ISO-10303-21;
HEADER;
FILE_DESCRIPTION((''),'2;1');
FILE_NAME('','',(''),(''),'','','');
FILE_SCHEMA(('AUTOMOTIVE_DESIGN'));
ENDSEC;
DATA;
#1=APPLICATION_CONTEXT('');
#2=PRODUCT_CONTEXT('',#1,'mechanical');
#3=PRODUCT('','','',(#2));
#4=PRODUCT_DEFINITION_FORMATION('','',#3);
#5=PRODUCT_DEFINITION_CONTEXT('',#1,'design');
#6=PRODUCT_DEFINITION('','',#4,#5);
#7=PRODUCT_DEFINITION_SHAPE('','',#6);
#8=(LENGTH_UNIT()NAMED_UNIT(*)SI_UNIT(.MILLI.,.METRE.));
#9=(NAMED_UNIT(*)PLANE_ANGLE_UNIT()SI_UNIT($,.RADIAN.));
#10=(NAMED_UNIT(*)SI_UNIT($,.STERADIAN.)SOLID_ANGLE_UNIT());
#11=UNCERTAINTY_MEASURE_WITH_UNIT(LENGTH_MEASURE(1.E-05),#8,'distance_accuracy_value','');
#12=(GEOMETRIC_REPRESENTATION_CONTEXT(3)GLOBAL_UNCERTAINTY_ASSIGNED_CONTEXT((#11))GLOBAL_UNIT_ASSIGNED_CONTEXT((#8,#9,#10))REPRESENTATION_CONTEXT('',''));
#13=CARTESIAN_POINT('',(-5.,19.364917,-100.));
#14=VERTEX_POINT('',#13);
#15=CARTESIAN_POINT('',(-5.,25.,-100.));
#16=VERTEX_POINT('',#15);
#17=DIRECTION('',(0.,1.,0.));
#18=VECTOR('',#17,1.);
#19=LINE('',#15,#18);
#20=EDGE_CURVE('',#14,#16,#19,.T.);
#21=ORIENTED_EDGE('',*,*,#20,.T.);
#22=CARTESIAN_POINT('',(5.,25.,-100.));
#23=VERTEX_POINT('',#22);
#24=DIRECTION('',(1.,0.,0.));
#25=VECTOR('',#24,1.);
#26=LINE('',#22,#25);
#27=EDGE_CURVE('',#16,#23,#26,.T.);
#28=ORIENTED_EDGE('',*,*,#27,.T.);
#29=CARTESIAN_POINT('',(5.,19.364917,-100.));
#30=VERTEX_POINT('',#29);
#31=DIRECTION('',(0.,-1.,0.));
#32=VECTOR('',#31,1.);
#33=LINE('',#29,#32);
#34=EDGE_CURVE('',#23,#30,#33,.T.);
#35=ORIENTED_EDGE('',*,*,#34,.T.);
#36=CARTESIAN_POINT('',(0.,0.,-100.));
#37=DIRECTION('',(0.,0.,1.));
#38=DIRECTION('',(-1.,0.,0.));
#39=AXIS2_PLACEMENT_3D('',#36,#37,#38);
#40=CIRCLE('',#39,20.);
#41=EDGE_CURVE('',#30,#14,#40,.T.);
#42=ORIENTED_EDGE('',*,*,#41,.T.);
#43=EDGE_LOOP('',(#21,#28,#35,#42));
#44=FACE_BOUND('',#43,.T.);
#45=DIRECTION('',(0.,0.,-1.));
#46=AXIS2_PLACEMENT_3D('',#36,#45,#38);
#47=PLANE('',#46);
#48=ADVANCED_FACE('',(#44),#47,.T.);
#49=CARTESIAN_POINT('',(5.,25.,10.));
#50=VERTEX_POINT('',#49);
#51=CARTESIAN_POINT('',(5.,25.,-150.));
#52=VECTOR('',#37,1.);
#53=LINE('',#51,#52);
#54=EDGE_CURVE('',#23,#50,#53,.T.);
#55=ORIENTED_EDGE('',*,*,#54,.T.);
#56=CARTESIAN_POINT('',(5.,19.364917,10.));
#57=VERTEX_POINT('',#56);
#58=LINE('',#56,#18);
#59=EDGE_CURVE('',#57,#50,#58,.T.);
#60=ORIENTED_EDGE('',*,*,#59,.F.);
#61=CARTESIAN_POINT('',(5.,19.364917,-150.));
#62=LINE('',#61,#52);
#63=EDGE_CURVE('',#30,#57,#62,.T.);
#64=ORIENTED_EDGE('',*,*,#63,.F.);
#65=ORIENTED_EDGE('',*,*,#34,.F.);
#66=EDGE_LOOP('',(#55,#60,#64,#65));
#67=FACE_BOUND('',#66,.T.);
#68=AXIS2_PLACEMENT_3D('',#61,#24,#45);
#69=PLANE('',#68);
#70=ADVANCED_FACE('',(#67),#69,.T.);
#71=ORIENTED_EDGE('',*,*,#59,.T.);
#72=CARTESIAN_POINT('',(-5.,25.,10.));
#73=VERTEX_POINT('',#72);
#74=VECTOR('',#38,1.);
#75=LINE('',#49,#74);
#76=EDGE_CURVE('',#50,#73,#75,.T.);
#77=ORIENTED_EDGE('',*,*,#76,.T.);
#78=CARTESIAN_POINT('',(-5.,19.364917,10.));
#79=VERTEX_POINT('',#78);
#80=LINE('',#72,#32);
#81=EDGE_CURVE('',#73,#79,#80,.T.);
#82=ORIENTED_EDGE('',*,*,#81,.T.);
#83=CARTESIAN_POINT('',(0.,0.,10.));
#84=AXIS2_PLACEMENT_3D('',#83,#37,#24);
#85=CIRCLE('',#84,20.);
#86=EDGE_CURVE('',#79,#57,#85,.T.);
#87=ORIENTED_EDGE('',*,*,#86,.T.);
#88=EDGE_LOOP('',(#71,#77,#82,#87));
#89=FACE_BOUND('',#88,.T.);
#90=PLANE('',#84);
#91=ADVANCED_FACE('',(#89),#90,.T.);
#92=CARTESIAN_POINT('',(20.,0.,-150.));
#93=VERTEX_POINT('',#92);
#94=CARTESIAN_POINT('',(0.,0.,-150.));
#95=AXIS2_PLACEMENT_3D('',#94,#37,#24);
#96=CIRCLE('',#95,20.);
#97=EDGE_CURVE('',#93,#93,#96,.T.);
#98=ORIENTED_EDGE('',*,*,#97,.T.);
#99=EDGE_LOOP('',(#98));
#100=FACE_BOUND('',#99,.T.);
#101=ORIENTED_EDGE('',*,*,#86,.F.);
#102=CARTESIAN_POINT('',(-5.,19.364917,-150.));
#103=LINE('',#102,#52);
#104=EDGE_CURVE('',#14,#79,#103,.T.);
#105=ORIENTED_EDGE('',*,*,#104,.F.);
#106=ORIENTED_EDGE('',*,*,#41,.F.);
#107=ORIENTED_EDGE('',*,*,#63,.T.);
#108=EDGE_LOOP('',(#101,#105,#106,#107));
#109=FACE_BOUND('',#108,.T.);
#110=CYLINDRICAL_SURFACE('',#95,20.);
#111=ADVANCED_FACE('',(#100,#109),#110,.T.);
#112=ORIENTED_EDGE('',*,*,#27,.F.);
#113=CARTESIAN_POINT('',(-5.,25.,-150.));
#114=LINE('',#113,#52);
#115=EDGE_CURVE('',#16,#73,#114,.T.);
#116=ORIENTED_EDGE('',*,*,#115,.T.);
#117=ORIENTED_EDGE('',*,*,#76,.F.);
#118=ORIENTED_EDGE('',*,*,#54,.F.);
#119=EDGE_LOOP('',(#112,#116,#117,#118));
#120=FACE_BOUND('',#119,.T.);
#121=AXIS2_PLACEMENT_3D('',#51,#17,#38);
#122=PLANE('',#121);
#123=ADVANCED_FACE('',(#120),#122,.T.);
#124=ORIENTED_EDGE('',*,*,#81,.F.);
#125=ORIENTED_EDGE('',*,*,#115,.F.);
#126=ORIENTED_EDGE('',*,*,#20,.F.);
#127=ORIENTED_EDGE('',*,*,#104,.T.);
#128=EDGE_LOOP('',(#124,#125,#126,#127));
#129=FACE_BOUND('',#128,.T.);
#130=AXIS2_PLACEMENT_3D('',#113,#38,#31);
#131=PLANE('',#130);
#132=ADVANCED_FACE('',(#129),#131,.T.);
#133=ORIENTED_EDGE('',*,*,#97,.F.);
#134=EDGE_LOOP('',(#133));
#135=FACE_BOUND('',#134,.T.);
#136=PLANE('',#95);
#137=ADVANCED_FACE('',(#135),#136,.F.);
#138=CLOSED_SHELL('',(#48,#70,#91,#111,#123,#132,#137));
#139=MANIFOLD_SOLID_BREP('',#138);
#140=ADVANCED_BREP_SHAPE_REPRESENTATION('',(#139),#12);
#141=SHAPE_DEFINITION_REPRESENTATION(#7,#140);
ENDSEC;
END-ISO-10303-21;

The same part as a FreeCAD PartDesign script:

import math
import FreeCAD as App
import Part
import Sketcher
from FreeCAD import Vector

doc = App.newDocument("Part")
body = doc.addObject("PartDesign::Body", "Body")

sketch1 = body.newObject("Sketcher::SketchObject", "Sketch")
sketch1.AttachmentSupport = (doc.getObject("XY_Plane"), [""])
sketch1.MapMode = "FlatFace"
sketch1.addGeometry(Part.LineSegment(Vector(-5, 25, 0), Vector(-5, 19, 0)), False)
sketch1.addGeometry(Part.ArcOfCircle(Part.Circle(Vector(0, 0, 0), Vector(0, 0, 1), 20), math.radians(104), math.radians(436)), False)
sketch1.addGeometry(Part.LineSegment(Vector(5, 19, 0), Vector(5, 25, 0)), False)
sketch1.addGeometry(Part.LineSegment(Vector(5, 25, 0), Vector(-5, 25, 0)), False)
sketch1.addConstraint(Sketcher.Constraint("Coincident", 0, 2, 1, 1))
sketch1.addConstraint(Sketcher.Constraint("Coincident", 1, 2, 2, 1))
sketch1.addConstraint(Sketcher.Constraint("Coincident", 2, 2, 3, 1))
sketch1.addConstraint(Sketcher.Constraint("Coincident", 3, 2, 0, 1))
sketch1.addConstraint(Sketcher.Constraint("Vertical", 0))
sketch1.addConstraint(Sketcher.Constraint("Vertical", 2))
sketch1.addConstraint(Sketcher.Constraint("Horizontal", 3))
sketch1.addConstraint(Sketcher.Constraint("Coincident", 1, 3, -1, 1))
sketch1.addConstraint(Sketcher.Constraint("Horizontal", 0, 2, 1, 2))
sketch1.addConstraint(Sketcher.Constraint("Radius", 1, 20.0))
sketch1.addConstraint(Sketcher.Constraint("DistanceX", 3, 2, 3, 1, 10.0))
sketch1.addConstraint(Sketcher.Constraint("DistanceY", -1, 1, 2, 2, 25.0))
pad1 = body.newObject("PartDesign::Pad", "Pad")
pad1.Profile = sketch1
pad1.Type = "TwoLengths"
pad1.Length = 10
pad1.Length2 = 150

sketch2 = body.newObject("Sketcher::SketchObject", "Sketch001")
sketch2.AttachmentSupport = (doc.getObject("XY_Plane"), [""])
sketch2.MapMode = "FlatFace"
sketch2.AttachmentOffset = App.Placement(Vector(0, 0, -150), App.Rotation())
sketch2.addGeometry(Part.LineSegment(Vector(5, 25, 0), Vector(5, 19, 0)), False)
sketch2.addGeometry(Part.ArcOfCircle(Part.Circle(Vector(0, 0, 0), Vector(0, 0, 1), 20), math.radians(76), math.radians(104)), False)
sketch2.addGeometry(Part.LineSegment(Vector(-5, 19, 0), Vector(-5, 25, 0)), False)
sketch2.addGeometry(Part.LineSegment(Vector(-5, 25, 0), Vector(5, 25, 0)), False)
sketch2.addConstraint(Sketcher.Constraint("Coincident", 0, 2, 1, 1))
sketch2.addConstraint(Sketcher.Constraint("Coincident", 1, 2, 2, 1))
sketch2.addConstraint(Sketcher.Constraint("Coincident", 2, 2, 3, 1))
sketch2.addConstraint(Sketcher.Constraint("Coincident", 3, 2, 0, 1))
sketch2.addConstraint(Sketcher.Constraint("Vertical", 0))
sketch2.addConstraint(Sketcher.Constraint("Vertical", 2))
sketch2.addConstraint(Sketcher.Constraint("Horizontal", 3))
sketch2.addConstraint(Sketcher.Constraint("Coincident", 1, 3, -1, 1))
sketch2.addConstraint(Sketcher.Constraint("Horizontal", 0, 2, 1, 2))
sketch2.addConstraint(Sketcher.Constraint("Radius", 1, 20.0))
sketch2.addConstraint(Sketcher.Constraint("DistanceX", 3, 1, 3, 2, 10.0))
sketch2.addConstraint(Sketcher.Constraint("DistanceY", -1, 1, 2, 2, 25.0))
pocket1 = body.newObject("PartDesign::Pocket", "Pocket")
pocket1.Profile = sketch2
pocket1.Length = 50
pocket1.Reversed = True

doc.recompute()
